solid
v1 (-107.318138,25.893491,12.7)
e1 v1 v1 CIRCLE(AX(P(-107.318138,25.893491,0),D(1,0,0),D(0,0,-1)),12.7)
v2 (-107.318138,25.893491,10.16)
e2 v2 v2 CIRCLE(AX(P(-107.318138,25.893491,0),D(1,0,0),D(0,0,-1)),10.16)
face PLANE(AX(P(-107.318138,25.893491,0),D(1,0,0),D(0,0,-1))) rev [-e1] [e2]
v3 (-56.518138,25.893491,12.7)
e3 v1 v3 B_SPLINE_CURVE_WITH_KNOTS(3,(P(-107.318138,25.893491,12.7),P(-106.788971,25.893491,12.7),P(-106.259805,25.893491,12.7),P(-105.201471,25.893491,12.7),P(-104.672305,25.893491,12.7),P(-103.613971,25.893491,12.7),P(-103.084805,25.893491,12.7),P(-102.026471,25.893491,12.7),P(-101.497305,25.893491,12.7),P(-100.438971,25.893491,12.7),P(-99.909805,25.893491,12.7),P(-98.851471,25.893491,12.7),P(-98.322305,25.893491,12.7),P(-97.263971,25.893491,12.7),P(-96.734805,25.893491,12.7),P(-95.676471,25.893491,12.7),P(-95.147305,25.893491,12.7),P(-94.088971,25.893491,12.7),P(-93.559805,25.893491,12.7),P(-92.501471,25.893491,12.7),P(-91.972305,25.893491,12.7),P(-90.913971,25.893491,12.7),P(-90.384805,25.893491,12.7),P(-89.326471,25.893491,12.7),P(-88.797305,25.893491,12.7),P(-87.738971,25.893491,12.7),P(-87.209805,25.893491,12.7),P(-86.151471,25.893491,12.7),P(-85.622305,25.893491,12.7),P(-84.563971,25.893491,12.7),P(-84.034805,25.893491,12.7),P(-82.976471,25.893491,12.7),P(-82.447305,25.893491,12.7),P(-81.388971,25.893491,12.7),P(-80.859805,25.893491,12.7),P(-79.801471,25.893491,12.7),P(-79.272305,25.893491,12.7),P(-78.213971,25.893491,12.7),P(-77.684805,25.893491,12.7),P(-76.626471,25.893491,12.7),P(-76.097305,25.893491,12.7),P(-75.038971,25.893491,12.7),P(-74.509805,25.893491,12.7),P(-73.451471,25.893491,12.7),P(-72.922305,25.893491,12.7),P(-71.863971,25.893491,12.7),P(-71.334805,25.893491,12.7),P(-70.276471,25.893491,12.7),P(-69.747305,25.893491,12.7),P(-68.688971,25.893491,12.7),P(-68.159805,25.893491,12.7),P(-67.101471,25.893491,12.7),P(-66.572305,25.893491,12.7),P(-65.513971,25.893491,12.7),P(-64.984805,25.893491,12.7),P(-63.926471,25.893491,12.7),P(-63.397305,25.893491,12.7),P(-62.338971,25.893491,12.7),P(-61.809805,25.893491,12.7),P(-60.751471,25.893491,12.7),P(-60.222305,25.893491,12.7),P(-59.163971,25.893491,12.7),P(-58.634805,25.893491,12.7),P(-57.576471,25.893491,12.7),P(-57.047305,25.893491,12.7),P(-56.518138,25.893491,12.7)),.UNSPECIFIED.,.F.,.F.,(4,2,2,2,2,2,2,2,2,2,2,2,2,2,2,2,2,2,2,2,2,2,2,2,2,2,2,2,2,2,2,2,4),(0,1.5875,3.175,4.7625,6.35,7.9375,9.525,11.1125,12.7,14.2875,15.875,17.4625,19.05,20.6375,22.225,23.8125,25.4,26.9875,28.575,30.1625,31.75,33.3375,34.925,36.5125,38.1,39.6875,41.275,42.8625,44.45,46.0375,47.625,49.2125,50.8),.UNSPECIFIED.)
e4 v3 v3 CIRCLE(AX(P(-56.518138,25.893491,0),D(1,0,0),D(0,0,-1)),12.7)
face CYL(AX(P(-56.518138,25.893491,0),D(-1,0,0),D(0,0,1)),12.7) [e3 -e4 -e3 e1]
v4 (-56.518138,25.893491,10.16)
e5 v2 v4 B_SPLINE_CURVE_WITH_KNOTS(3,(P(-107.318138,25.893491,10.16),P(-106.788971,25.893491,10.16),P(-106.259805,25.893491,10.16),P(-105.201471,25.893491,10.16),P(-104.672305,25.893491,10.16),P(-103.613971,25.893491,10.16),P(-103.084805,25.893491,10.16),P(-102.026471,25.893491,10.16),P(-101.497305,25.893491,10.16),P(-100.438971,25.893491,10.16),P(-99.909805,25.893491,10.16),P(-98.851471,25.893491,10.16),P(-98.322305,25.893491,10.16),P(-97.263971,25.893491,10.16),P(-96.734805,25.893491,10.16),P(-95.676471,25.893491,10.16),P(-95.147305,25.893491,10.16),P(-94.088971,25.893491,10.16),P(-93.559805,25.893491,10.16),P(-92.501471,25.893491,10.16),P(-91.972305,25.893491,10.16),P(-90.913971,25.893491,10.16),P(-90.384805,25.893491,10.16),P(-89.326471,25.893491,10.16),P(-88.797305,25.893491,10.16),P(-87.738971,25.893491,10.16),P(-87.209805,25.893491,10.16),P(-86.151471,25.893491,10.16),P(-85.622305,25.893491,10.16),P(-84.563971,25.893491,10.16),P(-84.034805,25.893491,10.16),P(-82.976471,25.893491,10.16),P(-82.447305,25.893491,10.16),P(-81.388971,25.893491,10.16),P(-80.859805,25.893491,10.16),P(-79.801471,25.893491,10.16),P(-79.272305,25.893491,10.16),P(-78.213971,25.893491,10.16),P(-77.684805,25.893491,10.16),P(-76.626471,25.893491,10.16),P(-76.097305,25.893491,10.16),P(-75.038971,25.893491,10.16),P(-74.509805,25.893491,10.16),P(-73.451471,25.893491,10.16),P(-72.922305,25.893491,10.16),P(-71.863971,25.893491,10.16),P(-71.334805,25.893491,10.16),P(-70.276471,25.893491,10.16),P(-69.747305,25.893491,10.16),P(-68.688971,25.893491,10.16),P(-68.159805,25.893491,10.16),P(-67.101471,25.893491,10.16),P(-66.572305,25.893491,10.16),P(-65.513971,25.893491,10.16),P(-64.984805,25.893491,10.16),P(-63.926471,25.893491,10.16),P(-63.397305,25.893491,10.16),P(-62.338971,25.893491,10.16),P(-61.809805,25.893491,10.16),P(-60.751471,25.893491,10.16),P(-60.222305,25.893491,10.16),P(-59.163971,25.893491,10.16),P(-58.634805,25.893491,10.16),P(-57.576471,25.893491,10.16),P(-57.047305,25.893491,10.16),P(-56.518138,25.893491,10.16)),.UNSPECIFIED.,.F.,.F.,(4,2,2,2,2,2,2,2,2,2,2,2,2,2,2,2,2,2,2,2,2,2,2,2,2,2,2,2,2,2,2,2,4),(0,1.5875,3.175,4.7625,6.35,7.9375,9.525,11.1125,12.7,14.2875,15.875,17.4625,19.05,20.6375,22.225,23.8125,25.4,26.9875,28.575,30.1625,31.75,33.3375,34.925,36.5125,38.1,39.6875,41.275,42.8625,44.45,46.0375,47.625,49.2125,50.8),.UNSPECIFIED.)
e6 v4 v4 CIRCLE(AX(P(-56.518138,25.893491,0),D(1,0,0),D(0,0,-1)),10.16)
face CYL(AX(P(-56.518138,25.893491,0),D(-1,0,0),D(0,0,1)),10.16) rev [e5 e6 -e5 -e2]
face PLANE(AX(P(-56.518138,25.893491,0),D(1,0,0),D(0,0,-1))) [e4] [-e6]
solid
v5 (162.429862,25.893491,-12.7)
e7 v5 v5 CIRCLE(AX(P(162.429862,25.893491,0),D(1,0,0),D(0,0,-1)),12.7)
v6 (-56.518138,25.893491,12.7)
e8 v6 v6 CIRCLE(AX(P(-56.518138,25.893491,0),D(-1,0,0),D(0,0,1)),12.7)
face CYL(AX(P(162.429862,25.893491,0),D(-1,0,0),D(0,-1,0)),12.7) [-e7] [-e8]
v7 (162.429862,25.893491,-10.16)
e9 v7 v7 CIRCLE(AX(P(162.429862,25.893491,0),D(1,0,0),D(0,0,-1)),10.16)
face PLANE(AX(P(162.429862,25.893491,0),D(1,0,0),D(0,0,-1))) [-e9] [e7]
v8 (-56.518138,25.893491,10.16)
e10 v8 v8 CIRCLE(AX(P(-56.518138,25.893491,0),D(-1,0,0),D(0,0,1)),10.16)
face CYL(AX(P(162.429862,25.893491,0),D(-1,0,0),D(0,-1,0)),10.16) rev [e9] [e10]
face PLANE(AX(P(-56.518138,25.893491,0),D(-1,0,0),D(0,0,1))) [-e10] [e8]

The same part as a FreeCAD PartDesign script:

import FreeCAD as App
import Part
import Sketcher

V = App.Vector
Q = App.Units.Quantity

doc = App.newDocument("Part")
params = doc.addObject("Spreadsheet::Sheet", "Params")
for row, (alias, value) in enumerate([
    ("sketch1_diameter", "1 in"),
    ("sketch1_diameter2", "0.8 in"),
    ("pad1_length", "2 in"),
    ("sketch2_diameter", "1 in"),
    ("sketch2_diameter2", "0.8 in"),
    ("pad2_length", "8.62 in"),
], start=1):
    params.set(f"A{row}", alias)
    params.set(f"B{row}", "=" + value)
    params.setAlias(f"B{row}", alias)

body = doc.addObject("PartDesign::Body", "Body")

sketch1 = body.newObject("Sketcher::SketchObject", "Sketch")
sketch1.AttachmentSupport = (doc.getObject("YZ_Plane"), [""])
sketch1.MapMode = "FlatFace"
sketch1.AttachmentOffset = App.Placement(V(0, 0, -107.318138), App.Rotation())
sketch1.addGeometry(Part.Circle(V(25.893491, 0, 0), V(0, 0, 1), 12.7), False)
sketch1.addGeometry(Part.Circle(V(25.893491, 0, 0), V(0, 0, 1), 10.16), False)
sketch1.addConstraint(Sketcher.Constraint("Coincident", 1, 3, 0, 3))
sketch1.addConstraint(Sketcher.Constraint("PointOnObject", 0, 3, -1))
sketch1.addConstraint(Sketcher.Constraint("Diameter", 0, Q("1 in")))
sketch1.addConstraint(Sketcher.Constraint("Diameter", 1, Q("0.8 in")))
sketch1.addConstraint(Sketcher.Constraint("DistanceX", -1, 1, 0, 3, Q("25.893491 mm")))
sketch1.setExpression("Constraints[2]", "Params.sketch1_diameter")
sketch1.setExpression("Constraints[3]", "Params.sketch1_diameter2")
pad1 = body.newObject("PartDesign::Pad", "Pad")
pad1.Profile = sketch1
pad1.setExpression("Length", "Params.pad1_length")
body2 = doc.addObject("PartDesign::Body", "Body001")

sketch2 = body2.newObject("Sketcher::SketchObject", "Sketch001")
sketch2.AttachmentSupport = (doc.getObject("YZ_Plane001"), [""])
sketch2.MapMode = "FlatFace"
sketch2.AttachmentOffset = App.Placement(V(0, 0, -56.518138), App.Rotation())
sketch2.addGeometry(Part.Circle(V(25.893491, 0, 0), V(0, 0, 1), 12.7), False)
sketch2.addGeometry(Part.Circle(V(25.893491, 0, 0), V(0, 0, 1), 10.16), False)
sketch2.addConstraint(Sketcher.Constraint("Coincident", 1, 3, 0, 3))
sketch2.addConstraint(Sketcher.Constraint("PointOnObject", 0, 3, -1))
sketch2.addConstraint(Sketcher.Constraint("Diameter", 0, Q("1 in")))
sketch2.addConstraint(Sketcher.Constraint("Diameter", 1, Q("0.8 in")))
sketch2.addConstraint(Sketcher.Constraint("DistanceX", -1, 1, 0, 3, Q("25.893491 mm")))
sketch2.setExpression("Constraints[2]", "Params.sketch2_diameter")
sketch2.setExpression("Constraints[3]", "Params.sketch2_diameter2")
pad2 = body2.newObject("PartDesign::Pad", "Pad001")
pad2.Profile = sketch2
pad2.setExpression("Length", "Params.pad2_length")

doc.recompute()
